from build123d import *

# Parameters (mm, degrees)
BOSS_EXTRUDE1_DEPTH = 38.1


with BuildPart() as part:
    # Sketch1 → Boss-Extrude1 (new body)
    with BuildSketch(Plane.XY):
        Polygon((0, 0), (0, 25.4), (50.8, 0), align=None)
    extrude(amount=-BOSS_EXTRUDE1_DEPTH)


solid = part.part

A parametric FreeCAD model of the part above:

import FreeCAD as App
import Part
import Sketcher

V = App.Vector
Q = App.Units.Quantity


def add_polygon(sketch, points):
    """Adds a closed chain of lines whose ends are joined by coincident constraints."""
    first, n = sketch.GeometryCount, len(points)
    for a, b in zip(points, points[1:] + points[:1]):
        sketch.addGeometry(Part.LineSegment(App.Vector(*a, 0), App.Vector(*b, 0)), False)
    for i in range(n):
        sketch.addConstraint(Sketcher.Constraint("Coincident", first + i, 2, first + (i + 1) % n, 1))

doc = App.newDocument("Part")
body = doc.addObject("PartDesign::Body", "Body")

# Sketch on XY plane
sketch1 = body.newObject("Sketcher::SketchObject", "Sketch")
sketch1.AttachmentSupport = (doc.getObject("XY_Plane"), [""])
sketch1.MapMode = "FlatFace"
add_polygon(sketch1, [(0, 25), (0, 0), (51, 0)])  # lines 0-2
sketch1.addConstraint([
    Sketcher.Constraint("Vertical", 0),
    Sketcher.Constraint("Horizontal", 1),
    Sketcher.Constraint("Coincident", 0, 2, -1, 1),
    Sketcher.Constraint("DistanceX", 1, 1, 1, 2, Q("2 in")),
    Sketcher.Constraint("DistanceY", 0, 2, 0, 1, Q("1 in")),
])
pad1 = body.newObject("PartDesign::Pad", "Pad")
pad1.Profile = sketch1
pad1.Length = Q("1.5 in")
pad1.Reversed = True

doc.recompute()
